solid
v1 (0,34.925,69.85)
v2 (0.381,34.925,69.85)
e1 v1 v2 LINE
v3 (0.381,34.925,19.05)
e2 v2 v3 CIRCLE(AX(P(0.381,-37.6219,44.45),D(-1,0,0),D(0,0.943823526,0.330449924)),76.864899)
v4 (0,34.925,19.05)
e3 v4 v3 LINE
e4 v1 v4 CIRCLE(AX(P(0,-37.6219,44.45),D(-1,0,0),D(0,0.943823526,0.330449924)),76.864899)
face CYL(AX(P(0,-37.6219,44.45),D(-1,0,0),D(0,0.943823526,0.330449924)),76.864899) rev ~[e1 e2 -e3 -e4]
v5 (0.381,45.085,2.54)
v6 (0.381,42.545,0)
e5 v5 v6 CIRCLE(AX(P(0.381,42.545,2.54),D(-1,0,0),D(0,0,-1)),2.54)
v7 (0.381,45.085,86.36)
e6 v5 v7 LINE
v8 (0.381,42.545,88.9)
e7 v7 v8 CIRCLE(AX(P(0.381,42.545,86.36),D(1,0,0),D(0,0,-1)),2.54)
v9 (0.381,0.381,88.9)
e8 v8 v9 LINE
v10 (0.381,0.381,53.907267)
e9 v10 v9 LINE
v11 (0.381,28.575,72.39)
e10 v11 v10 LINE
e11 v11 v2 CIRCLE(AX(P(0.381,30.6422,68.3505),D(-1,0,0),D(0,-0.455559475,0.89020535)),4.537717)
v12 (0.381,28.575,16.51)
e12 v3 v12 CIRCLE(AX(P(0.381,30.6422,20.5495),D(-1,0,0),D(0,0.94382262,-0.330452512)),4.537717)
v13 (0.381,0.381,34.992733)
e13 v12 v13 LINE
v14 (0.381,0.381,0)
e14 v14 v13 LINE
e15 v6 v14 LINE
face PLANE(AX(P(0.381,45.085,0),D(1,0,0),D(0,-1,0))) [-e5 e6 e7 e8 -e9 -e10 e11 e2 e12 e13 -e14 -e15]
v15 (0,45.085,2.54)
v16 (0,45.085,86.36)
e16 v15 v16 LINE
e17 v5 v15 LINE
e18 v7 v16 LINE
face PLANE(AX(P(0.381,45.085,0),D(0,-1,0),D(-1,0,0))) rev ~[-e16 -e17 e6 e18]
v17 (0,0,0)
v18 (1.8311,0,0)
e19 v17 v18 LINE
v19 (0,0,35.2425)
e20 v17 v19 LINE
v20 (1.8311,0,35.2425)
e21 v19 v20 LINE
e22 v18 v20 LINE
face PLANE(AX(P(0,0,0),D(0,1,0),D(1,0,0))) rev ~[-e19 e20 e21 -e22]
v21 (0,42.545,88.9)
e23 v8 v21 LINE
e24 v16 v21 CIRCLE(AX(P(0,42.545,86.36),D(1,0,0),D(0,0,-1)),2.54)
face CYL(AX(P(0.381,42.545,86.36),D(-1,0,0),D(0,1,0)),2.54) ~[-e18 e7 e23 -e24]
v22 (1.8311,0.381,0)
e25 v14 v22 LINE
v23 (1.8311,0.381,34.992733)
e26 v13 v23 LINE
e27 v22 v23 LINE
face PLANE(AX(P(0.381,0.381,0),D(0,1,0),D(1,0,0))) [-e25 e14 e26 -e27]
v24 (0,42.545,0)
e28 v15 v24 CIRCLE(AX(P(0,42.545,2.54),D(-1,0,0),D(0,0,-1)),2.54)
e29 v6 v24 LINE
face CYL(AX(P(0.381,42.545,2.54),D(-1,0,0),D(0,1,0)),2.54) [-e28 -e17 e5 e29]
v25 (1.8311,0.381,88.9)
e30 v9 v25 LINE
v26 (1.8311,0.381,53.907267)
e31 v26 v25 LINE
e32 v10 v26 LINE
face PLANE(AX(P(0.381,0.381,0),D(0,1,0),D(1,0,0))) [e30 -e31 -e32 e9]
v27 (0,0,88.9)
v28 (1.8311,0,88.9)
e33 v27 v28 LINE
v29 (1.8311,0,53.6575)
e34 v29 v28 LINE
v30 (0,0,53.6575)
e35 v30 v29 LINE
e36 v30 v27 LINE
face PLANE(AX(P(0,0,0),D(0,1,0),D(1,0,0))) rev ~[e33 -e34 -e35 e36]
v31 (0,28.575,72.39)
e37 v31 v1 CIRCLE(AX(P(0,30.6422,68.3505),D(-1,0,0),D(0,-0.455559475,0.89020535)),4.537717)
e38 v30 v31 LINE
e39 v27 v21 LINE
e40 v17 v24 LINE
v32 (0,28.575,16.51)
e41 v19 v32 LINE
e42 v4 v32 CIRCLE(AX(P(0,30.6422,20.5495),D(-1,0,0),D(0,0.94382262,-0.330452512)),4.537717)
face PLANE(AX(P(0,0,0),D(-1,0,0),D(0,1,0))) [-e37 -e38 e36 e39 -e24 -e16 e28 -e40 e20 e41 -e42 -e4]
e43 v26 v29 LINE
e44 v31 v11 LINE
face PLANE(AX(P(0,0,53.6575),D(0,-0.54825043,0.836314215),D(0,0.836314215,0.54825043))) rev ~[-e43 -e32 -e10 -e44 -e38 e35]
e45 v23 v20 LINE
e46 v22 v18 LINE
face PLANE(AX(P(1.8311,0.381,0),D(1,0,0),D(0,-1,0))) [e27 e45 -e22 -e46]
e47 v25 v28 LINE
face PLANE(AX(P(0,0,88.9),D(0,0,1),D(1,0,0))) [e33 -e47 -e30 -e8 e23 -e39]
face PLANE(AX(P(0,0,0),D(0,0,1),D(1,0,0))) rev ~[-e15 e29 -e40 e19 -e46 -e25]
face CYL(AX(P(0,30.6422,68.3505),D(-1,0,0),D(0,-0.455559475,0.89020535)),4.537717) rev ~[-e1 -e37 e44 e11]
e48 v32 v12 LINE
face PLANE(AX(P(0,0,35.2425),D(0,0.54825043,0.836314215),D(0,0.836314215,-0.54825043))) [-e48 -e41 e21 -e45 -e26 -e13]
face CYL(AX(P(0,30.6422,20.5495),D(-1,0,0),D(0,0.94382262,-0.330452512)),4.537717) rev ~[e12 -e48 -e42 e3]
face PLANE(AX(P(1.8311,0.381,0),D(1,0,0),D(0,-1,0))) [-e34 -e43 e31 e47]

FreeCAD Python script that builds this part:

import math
import FreeCAD as App
import Part
import Sketcher
Q = App.Units.Quantity


def edges_at(feature, points):
    """Names of the edges that pass closest to the given points."""
    edges = feature.Shape.Edges
    near = lambda p: min(range(len(edges)), key=lambda i: edges[i].distToShape(Part.Vertex(*p))[0])
    return sorted({f"Edge{near(p) + 1}" for p in points})


def add_polygon(sketch, points):
    """Adds a closed chain of lines whose ends are joined by coincident constraints."""
    first, n = sketch.GeometryCount, len(points)
    for a, b in zip(points, points[1:] + points[:1]):
        sketch.addGeometry(Part.LineSegment(App.Vector(*a, 0), App.Vector(*b, 0)), False)
    for i in range(n):
        sketch.addConstraint(Sketcher.Constraint("Coincident", first + i, 2, first + (i + 1) % n, 1))

doc = App.newDocument("Part")
body = doc.addObject("PartDesign::Body", "Body")

sketch1 = doc.addObject("Sketcher::SketchObject", "Sketch")
body.addObject(sketch1)
sketch1.AttachmentSupport = (doc.XY_Plane, [""])
sketch1.MapMode = "FlatFace"
add_polygon(sketch1, [(0, 45.09), (0, 0), (1.83, 0), (1.83, 0.38), (0.38, 0.38), (0.38, 45.09)])
sketch1.addConstraint([
    Sketcher.Constraint("Vertical", 0),
    Sketcher.Constraint("Horizontal", 1),
    Sketcher.Constraint("Vertical", 2),
    Sketcher.Constraint("Horizontal", 3),
    Sketcher.Constraint("Vertical", 4),
    Sketcher.Constraint("Horizontal", 5),
    Sketcher.Constraint("Coincident", 0, 2, -1, 1),
    Sketcher.Constraint("Equal", 5, 2),
    Sketcher.Constraint("DistanceX", 5, 2, 5, 1, Q("0.015 in")),
    Sketcher.Constraint("DistanceY", 0, 2, 0, 1, Q("1.775 in")),
    Sketcher.Constraint("DistanceX", 1, 1, 1, 2, Q("0.0721 in")),
])
pad1 = doc.addObject("PartDesign::Pad", "Pad")
body.addObject(pad1)
pad1.Profile = sketch1
pad1.Length = Q("3.5 in")
doc.recompute()

fillet = doc.addObject("PartDesign::Fillet", "Fillet")
body.addObject(fillet)
fillet.Base = (pad1, edges_at(pad1, [(0.191, 45.085, 88.9), (0.191, 45.085, 0)]))
fillet.Radius = Q("0.1 in")

sketch2 = doc.addObject("Sketcher::SketchObject", "Sketch001")
body.addObject(sketch2)
sketch2.AttachmentSupport = (doc.YZ_Plane, [""])
sketch2.MapMode = "FlatFace"
sketch2.addGeometry([
    Part.Circle(App.Vector(0, 40, 0), App.Vector(0, 0, 1), 3.2),
    Part.Circle(App.Vector(0, 48.9, 0), App.Vector(0, 0, 1), 3.2),
], False)
sketch2.addConstraint([
    Sketcher.Constraint("PointOnObject", 0, 3, -2),
    Sketcher.Constraint("PointOnObject", 1, 3, -2),
    Sketcher.Constraint("Diameter", 0, Q("0.25 in")),
    Sketcher.Constraint("DistanceY", 0, 3, 1, 3, Q("0.35 in")),
    Sketcher.Constraint("DistanceY", -1, 1, 0, 3, Q("1.575 in")),
    Sketcher.Constraint("Diameter", 1, Q("6.4614 mm")),
])
pocket1 = doc.addObject("PartDesign::Pocket", "Pocket")
body.addObject(pocket1)
pocket1.Profile = sketch2
pocket1.Length = Q("3.5 in")
pocket1.Reversed = True

sketch3 = doc.addObject("Sketcher::SketchObject", "Sketch002")
body.addObject(sketch3)
sketch3.AttachmentSupport = (doc.YZ_Plane, [""])
sketch3.MapMode = "FlatFace"
sketch3.addGeometry([
    Part.Circle(App.Vector(31.1, 20.3, 0), App.Vector(0, 0, 1), 3.5),
    Part.Circle(App.Vector(31.1, 68.6, 0), App.Vector(0, 0, 1), 3.5),
], False)
sketch3.addConstraint([
    Sketcher.Constraint("Equal", 0, 1),
    Sketcher.Constraint("Vertical", 0, 3, 1, 3),
    Sketcher.Constraint("Diameter", 0, Q("0.275 in")),
    Sketcher.Constraint("DistanceY", -1, 1, 0, 3, Q("0.8 in")),
    Sketcher.Constraint("DistanceY", -1, 1, 1, 3, Q("2.7 in")),
    Sketcher.Constraint("DistanceX", -1, 1, 0, 3, Q("1.225 in")),
])
pocket2 = doc.addObject("PartDesign::Pocket", "Pocket001")
body.addObject(pocket2)
pocket2.Profile = sketch3
pocket2.Length = Q("3.5 in")
pocket2.Reversed = True

sketch4 = doc.addObject("Sketcher::SketchObject", "Sketch003")
body.addObject(sketch4)
sketch4.AttachmentSupport = (doc.YZ_Plane, [""])
sketch4.MapMode = "FlatFace"
sketch4.addGeometry([
    Part.LineSegment(App.Vector(0, 35.2, 0), App.Vector(0, 53.7, 0)),
    Part.LineSegment(App.Vector(0, 53.7, 0), App.Vector(28.6, 72.4, 0)),
    Part.ArcOfCircle(Part.Circle(App.Vector(30.6, 68.4, 0), App.Vector(0, 0, 1), 4.5), math.radians(19), math.radians(117)),
    Part.ArcOfCircle(Part.Circle(App.Vector(-37.6, 44.5, 0), App.Vector(0, 0, 1), 76.9), math.radians(-19), math.radians(19)),
    Part.ArcOfCircle(Part.Circle(App.Vector(30.6, 20.5, 0), App.Vector(0, 0, 1), 4.5), math.radians(-117), math.radians(-19)),
    Part.LineSegment(App.Vector(28.6, 16.5, 0), App.Vector(0, 35.2, 0)),
], False)
sketch4.addConstraint([
    Sketcher.Constraint("Coincident", 0, 2, 1, 1),
    Sketcher.Constraint("Coincident", 1, 2, 2, 2),
    Sketcher.Constraint("Tangent", 2, 1, 3, 2),
    Sketcher.Constraint("Tangent", 3, 1, 4, 2),
    Sketcher.Constraint("Coincident", 4, 1, 5, 1),
    Sketcher.Constraint("Coincident", 5, 2, 0, 1),
    Sketcher.Constraint("Vertical", 0),
    Sketcher.Constraint("Equal", 2, 4),
    Sketcher.Constraint("PointOnObject", 0, 2, -2),
    Sketcher.Constraint("Vertical", 2, 3, 4, 3),
    Sketcher.Constraint("Vertical", 1, 2, 4, 1),
    Sketcher.Constraint("Equal", 1, 5),
    Sketcher.Constraint("DistanceY", -1, 1, 3, 1, Q("0.75 in")),
    Sketcher.Constraint("DistanceY", -1, 1, 4, 1, Q("0.65 in")),
    Sketcher.Constraint("DistanceY", 3, 3, 2, 1, Q("1 in")),
    Sketcher.Constraint("DistanceY", -1, 1, 5, 2, Q("1.3875 in")),
    Sketcher.Constraint("Radius", 2, Q("4.5377 mm")),
    Sketcher.Constraint("Radius", 3, Q("76.865 mm")),
    Sketcher.Constraint("DistanceX", -1, 1, 1, 2, Q("1.125 in")),
])
pocket3 = doc.addObject("PartDesign::Pocket", "Pocket002")
body.addObject(pocket3)
pocket3.Profile = sketch4
pocket3.Length = Q("1 in")
pocket3.Reversed = True

doc.recompute()
